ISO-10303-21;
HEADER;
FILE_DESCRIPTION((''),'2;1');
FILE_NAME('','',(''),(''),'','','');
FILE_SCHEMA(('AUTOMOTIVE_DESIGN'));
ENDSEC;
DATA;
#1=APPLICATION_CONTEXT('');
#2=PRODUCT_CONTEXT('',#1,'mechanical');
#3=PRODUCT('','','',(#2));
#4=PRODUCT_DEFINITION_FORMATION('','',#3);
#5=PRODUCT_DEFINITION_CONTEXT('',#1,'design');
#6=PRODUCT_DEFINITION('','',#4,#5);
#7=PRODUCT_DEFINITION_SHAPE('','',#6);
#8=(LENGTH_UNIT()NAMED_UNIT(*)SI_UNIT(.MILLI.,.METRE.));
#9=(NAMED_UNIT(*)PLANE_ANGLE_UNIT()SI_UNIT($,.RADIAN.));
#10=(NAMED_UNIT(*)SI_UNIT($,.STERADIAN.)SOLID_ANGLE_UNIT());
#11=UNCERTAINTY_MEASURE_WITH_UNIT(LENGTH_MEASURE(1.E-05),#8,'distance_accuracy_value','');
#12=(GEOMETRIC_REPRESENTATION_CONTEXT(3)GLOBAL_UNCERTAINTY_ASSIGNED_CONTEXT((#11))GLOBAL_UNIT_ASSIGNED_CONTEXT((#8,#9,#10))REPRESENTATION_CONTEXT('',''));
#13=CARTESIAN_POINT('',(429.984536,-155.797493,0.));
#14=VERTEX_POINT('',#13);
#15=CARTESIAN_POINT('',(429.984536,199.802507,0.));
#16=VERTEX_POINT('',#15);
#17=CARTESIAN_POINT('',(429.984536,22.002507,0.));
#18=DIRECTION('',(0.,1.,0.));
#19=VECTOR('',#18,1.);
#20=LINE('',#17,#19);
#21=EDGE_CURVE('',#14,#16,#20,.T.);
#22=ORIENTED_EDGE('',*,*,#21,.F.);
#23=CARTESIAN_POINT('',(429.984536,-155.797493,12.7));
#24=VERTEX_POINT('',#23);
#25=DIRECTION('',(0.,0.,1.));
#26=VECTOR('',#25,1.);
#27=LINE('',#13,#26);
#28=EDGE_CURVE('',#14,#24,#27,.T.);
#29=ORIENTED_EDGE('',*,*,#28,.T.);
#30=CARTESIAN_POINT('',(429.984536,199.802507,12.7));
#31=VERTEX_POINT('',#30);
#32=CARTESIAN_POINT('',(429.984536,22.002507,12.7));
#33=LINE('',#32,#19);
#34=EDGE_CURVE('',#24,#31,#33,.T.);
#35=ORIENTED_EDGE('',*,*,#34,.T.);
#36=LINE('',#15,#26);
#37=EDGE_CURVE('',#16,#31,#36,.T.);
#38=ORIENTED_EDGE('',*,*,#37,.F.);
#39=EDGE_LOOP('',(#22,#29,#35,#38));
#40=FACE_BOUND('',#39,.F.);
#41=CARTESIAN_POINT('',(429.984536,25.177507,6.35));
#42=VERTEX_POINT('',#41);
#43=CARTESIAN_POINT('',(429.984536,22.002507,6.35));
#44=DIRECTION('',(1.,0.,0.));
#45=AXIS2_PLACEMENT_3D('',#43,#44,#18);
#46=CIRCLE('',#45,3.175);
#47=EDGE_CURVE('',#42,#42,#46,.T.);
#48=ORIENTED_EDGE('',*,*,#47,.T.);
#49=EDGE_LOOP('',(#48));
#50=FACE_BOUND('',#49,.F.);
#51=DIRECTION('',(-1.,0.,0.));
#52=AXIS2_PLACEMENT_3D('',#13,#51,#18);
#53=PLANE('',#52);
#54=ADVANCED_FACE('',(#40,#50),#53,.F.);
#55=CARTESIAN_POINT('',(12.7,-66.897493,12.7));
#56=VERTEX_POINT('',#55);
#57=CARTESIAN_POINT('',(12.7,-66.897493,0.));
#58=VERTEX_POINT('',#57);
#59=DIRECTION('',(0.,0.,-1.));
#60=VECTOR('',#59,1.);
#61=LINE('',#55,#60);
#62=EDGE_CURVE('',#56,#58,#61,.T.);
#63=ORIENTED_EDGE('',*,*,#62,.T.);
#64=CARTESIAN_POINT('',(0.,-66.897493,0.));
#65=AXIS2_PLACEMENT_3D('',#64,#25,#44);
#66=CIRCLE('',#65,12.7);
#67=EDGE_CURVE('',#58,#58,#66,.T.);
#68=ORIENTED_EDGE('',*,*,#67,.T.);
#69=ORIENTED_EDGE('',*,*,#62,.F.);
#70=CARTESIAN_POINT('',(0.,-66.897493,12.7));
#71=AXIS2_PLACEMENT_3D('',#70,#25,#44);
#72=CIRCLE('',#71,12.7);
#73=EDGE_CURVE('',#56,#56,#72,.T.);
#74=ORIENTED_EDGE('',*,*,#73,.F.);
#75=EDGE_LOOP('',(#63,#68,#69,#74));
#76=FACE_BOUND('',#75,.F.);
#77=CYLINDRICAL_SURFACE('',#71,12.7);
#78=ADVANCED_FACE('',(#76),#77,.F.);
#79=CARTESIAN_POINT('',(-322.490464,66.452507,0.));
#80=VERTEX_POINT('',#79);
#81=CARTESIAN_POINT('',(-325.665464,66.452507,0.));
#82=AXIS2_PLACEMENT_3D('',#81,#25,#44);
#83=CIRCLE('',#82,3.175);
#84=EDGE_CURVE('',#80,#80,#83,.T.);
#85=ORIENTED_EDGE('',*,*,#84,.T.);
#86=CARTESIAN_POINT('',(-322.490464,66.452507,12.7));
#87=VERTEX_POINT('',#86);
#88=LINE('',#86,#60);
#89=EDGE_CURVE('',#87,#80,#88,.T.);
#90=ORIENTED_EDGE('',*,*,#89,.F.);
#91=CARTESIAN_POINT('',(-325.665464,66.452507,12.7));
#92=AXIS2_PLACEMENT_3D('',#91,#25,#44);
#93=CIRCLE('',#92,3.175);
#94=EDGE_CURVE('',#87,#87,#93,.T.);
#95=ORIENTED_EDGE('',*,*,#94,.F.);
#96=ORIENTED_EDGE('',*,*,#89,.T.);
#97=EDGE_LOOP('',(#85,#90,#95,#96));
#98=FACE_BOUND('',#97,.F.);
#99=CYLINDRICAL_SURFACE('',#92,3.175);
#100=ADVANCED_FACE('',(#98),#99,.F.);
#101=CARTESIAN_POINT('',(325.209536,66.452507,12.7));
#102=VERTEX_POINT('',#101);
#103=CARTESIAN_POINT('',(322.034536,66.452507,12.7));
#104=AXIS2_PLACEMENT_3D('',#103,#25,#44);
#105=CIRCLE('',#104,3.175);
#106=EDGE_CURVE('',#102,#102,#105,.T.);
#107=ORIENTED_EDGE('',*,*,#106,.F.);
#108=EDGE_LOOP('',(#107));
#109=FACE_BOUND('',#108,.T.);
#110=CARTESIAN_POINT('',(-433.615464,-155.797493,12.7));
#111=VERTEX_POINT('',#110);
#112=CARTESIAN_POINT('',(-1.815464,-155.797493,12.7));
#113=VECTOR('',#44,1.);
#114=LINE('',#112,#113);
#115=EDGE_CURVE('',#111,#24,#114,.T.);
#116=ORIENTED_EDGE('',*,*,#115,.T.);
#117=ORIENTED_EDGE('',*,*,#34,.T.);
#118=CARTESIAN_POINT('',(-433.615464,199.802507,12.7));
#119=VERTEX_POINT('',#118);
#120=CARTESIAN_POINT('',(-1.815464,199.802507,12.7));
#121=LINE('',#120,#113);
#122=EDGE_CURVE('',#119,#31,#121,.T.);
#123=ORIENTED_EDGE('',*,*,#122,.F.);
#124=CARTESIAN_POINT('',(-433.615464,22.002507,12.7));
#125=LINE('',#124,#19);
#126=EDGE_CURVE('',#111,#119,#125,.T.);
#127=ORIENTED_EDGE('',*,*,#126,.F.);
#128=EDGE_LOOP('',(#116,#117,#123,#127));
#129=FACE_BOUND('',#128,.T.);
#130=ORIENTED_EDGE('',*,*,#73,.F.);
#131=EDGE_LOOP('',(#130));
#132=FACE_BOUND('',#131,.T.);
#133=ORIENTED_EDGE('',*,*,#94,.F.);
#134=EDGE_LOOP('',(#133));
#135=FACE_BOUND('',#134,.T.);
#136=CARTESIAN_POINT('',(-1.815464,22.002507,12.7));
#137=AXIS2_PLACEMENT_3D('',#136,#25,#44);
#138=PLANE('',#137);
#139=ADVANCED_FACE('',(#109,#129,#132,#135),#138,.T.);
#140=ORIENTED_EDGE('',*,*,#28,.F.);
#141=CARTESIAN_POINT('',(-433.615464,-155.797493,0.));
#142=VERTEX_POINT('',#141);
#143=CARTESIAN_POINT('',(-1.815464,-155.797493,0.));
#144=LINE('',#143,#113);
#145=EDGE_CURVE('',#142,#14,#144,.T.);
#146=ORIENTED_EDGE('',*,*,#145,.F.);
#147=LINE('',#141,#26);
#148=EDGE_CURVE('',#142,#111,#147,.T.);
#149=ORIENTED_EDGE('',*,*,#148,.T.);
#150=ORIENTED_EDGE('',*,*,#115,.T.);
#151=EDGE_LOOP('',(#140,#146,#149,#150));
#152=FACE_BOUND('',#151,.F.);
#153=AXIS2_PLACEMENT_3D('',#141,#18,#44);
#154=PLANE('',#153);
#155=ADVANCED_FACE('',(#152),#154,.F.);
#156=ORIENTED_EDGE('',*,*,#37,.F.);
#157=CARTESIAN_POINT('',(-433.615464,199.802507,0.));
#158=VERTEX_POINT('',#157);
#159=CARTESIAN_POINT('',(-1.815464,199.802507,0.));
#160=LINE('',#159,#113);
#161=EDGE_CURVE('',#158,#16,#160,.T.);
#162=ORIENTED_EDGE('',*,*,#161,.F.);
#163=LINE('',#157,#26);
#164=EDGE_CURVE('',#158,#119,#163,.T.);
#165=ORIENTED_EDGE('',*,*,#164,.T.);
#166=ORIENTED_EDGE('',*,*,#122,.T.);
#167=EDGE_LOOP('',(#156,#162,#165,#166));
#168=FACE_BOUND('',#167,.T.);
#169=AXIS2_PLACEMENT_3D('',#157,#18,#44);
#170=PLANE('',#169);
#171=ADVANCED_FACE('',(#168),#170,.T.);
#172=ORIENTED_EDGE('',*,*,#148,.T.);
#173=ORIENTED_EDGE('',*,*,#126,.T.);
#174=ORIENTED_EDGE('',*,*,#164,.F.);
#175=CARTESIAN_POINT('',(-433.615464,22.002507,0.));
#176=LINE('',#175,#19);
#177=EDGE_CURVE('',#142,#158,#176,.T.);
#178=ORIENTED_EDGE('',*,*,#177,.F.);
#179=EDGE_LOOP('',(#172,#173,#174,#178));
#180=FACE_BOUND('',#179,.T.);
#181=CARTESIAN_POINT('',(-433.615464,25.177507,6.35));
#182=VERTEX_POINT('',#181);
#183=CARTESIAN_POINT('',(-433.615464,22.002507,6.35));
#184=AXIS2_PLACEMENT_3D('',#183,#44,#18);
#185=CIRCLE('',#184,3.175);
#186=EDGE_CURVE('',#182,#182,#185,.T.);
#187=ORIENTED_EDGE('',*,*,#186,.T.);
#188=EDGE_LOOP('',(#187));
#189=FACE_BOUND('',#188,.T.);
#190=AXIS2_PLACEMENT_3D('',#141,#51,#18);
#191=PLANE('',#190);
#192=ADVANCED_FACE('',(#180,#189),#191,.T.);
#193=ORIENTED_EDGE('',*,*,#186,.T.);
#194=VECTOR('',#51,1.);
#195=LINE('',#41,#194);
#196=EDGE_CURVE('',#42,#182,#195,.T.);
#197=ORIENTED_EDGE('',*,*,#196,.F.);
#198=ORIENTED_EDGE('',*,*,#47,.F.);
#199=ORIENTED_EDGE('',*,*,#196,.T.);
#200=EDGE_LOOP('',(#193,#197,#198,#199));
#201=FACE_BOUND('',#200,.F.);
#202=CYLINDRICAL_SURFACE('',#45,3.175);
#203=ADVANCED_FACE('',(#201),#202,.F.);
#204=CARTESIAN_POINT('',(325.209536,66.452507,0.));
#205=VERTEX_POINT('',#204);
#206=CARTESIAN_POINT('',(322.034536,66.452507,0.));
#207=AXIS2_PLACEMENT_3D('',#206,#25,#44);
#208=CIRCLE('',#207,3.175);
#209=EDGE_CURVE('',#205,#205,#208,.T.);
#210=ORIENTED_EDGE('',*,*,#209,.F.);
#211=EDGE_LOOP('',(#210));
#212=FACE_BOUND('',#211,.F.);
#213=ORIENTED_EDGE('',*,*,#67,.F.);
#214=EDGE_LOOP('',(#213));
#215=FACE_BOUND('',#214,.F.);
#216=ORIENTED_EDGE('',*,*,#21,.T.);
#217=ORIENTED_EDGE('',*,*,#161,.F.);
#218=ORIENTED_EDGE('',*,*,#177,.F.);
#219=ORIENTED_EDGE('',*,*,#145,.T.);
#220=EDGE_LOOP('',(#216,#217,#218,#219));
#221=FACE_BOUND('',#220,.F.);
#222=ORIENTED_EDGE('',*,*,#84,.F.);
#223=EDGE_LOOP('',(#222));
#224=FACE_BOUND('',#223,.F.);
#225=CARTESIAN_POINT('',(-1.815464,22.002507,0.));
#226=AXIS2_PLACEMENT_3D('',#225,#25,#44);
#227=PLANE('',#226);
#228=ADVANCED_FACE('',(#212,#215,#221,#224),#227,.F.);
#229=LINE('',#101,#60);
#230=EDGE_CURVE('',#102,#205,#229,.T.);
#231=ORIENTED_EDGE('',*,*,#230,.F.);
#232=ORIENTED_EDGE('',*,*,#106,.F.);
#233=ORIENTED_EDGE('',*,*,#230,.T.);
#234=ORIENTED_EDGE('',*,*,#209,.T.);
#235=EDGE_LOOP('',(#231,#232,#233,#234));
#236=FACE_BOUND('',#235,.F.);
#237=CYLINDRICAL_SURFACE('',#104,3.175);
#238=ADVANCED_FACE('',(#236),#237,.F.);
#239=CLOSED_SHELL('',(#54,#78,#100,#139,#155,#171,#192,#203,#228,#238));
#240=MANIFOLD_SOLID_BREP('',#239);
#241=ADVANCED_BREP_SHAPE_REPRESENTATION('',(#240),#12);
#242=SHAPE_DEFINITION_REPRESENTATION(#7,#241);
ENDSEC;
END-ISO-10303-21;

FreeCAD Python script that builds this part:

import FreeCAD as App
import Part
import Sketcher

V = App.Vector
Q = App.Units.Quantity

doc = App.newDocument("Part")
body = doc.addObject("PartDesign::Body", "Body")

sketch1 = doc.addObject("Sketcher::SketchObject", "Sketch")
body.addObject(sketch1)
sketch1.AttachmentSupport = (doc.XY_Plane, [""])
sketch1.MapMode = "FlatFace"
sketch1.addGeometry([
    Part.LineSegment(V(-433.615464, 199.802507, 0), V(-433.615464, -155.797493, 0)),
    Part.LineSegment(V(-433.615464, -155.797493, 0), V(429.984536, -155.797493, 0)),
    Part.LineSegment(V(429.984536, -155.797493, 0), V(429.984536, 199.802507, 0)),
    Part.LineSegment(V(429.984536, 199.802507, 0), V(-433.615464, 199.802507, 0)),
], False)
sketch1.addConstraint([
    Sketcher.Constraint("Coincident", 0, 2, 1, 1),
    Sketcher.Constraint("Coincident", 1, 2, 2, 1),
    Sketcher.Constraint("Coincident", 2, 2, 3, 1),
    Sketcher.Constraint("Coincident", 3, 2, 0, 1),
    Sketcher.Constraint("Vertical", 0),
    Sketcher.Constraint("Horizontal", 1),
    Sketcher.Constraint("Vertical", 2),
    Sketcher.Constraint("Horizontal", 3),
    Sketcher.Constraint("DistanceX", 1, 1, 1, 2, Q("34 in")),
    Sketcher.Constraint("DistanceY", 0, 2, 0, 1, Q("14 in")),
    Sketcher.Constraint("DistanceX", 0, 2, -1, 1, 433.615464),
    Sketcher.Constraint("DistanceY", 0, 2, -1, 1, 155.797493),
])
pad1 = doc.addObject("PartDesign::Pad", "Pad")
body.addObject(pad1)
pad1.Profile = sketch1
pad1.Length = Q("0.5 in")

sketch2 = doc.addObject("Sketcher::SketchObject", "Sketch001")
body.addObject(sketch2)
sketch2.AttachmentSupport = (doc.YZ_Plane, [""])
sketch2.MapMode = "FlatFace"
sketch2.AttachmentOffset = App.Placement(V(0, 0, 429.984536), App.Rotation())
sketch2.addGeometry(Part.Circle(V(22.002507, 6.35, 0), V(0, 0, 1), 3.175), False)
sketch2.addConstraint([
    Sketcher.Constraint("Diameter", 0, Q("0.25 in")),
    Sketcher.Constraint("DistanceY", -1, 1, 0, 3, Q("0.25 in")),
    Sketcher.Constraint("DistanceX", -1, 1, 0, 3, 22.002507),
])
pocket1 = doc.addObject("PartDesign::Pocket", "Pocket")
body.addObject(pocket1)
pocket1.Profile = sketch2
pocket1.Type = "ThroughAll"

sketch3 = doc.addObject("Sketcher::SketchObject", "Sketch002")
body.addObject(sketch3)
sketch3.AttachmentSupport = (doc.XY_Plane, [""])
sketch3.MapMode = "FlatFace"
sketch3.AttachmentOffset = App.Placement(V(0, 0, 0.5 * 25.4), App.Rotation())
sketch3.addGeometry(Part.Circle(V(0, -66.897493, 0), V(0, 0, 1), 12.7), False)
sketch3.addConstraint([
    Sketcher.Constraint("PointOnObject", 0, 3, -2),
    Sketcher.Constraint("Diameter", 0, Q("1 in")),
    Sketcher.Constraint("DistanceY", 0, 3, -1, 1, 66.897493),
])
pocket2 = doc.addObject("PartDesign::Pocket", "Pocket001")
body.addObject(pocket2)
pocket2.Profile = sketch3
pocket2.Length = Q("1 in")

sketch4 = doc.addObject("Sketcher::SketchObject", "Sketch003")
body.addObject(sketch4)
sketch4.AttachmentSupport = (doc.XY_Plane, [""])
sketch4.MapMode = "FlatFace"
sketch4.AttachmentOffset = App.Placement(V(0, 0, 0.5 * 25.4), App.Rotation())
sketch4.addGeometry([
    Part.Circle(V(0, -66.897493, 0), V(0, 0, 1), 12.7),
    Part.Circle(V(-325.665464, 66.452507, 0), V(0, 0, 1), 3.175),
    Part.Circle(V(322.034536, 66.452507, 0), V(0, 0, 1), 3.175),
], False)
sketch4.addConstraint([
    Sketcher.Constraint("Equal", 1, 2),
    Sketcher.Constraint("PointOnObject", 0, 3, -2),
    Sketcher.Constraint("Horizontal", 1, 3, 2, 3),
    Sketcher.Constraint("Diameter", 0, Q("1 in")),
    Sketcher.Constraint("Diameter", 1, Q("0.25 in")),
    Sketcher.Constraint("DistanceX", 1, 3, 2, 3, Q("25.5 in")),
    Sketcher.Constraint("DistanceY", 0, 3, 1, 3, Q("5.25 in")),
    Sketcher.Constraint("DistanceY", 0, 3, -1, 1, 66.897493),
    Sketcher.Constraint("DistanceX", 1, 3, -1, 1, 325.665464),
])
pocket3 = doc.addObject("PartDesign::Pocket", "Pocket002")
body.addObject(pocket3)
pocket3.Profile = sketch4
pocket3.Type = "ThroughAll"

doc.recompute()
